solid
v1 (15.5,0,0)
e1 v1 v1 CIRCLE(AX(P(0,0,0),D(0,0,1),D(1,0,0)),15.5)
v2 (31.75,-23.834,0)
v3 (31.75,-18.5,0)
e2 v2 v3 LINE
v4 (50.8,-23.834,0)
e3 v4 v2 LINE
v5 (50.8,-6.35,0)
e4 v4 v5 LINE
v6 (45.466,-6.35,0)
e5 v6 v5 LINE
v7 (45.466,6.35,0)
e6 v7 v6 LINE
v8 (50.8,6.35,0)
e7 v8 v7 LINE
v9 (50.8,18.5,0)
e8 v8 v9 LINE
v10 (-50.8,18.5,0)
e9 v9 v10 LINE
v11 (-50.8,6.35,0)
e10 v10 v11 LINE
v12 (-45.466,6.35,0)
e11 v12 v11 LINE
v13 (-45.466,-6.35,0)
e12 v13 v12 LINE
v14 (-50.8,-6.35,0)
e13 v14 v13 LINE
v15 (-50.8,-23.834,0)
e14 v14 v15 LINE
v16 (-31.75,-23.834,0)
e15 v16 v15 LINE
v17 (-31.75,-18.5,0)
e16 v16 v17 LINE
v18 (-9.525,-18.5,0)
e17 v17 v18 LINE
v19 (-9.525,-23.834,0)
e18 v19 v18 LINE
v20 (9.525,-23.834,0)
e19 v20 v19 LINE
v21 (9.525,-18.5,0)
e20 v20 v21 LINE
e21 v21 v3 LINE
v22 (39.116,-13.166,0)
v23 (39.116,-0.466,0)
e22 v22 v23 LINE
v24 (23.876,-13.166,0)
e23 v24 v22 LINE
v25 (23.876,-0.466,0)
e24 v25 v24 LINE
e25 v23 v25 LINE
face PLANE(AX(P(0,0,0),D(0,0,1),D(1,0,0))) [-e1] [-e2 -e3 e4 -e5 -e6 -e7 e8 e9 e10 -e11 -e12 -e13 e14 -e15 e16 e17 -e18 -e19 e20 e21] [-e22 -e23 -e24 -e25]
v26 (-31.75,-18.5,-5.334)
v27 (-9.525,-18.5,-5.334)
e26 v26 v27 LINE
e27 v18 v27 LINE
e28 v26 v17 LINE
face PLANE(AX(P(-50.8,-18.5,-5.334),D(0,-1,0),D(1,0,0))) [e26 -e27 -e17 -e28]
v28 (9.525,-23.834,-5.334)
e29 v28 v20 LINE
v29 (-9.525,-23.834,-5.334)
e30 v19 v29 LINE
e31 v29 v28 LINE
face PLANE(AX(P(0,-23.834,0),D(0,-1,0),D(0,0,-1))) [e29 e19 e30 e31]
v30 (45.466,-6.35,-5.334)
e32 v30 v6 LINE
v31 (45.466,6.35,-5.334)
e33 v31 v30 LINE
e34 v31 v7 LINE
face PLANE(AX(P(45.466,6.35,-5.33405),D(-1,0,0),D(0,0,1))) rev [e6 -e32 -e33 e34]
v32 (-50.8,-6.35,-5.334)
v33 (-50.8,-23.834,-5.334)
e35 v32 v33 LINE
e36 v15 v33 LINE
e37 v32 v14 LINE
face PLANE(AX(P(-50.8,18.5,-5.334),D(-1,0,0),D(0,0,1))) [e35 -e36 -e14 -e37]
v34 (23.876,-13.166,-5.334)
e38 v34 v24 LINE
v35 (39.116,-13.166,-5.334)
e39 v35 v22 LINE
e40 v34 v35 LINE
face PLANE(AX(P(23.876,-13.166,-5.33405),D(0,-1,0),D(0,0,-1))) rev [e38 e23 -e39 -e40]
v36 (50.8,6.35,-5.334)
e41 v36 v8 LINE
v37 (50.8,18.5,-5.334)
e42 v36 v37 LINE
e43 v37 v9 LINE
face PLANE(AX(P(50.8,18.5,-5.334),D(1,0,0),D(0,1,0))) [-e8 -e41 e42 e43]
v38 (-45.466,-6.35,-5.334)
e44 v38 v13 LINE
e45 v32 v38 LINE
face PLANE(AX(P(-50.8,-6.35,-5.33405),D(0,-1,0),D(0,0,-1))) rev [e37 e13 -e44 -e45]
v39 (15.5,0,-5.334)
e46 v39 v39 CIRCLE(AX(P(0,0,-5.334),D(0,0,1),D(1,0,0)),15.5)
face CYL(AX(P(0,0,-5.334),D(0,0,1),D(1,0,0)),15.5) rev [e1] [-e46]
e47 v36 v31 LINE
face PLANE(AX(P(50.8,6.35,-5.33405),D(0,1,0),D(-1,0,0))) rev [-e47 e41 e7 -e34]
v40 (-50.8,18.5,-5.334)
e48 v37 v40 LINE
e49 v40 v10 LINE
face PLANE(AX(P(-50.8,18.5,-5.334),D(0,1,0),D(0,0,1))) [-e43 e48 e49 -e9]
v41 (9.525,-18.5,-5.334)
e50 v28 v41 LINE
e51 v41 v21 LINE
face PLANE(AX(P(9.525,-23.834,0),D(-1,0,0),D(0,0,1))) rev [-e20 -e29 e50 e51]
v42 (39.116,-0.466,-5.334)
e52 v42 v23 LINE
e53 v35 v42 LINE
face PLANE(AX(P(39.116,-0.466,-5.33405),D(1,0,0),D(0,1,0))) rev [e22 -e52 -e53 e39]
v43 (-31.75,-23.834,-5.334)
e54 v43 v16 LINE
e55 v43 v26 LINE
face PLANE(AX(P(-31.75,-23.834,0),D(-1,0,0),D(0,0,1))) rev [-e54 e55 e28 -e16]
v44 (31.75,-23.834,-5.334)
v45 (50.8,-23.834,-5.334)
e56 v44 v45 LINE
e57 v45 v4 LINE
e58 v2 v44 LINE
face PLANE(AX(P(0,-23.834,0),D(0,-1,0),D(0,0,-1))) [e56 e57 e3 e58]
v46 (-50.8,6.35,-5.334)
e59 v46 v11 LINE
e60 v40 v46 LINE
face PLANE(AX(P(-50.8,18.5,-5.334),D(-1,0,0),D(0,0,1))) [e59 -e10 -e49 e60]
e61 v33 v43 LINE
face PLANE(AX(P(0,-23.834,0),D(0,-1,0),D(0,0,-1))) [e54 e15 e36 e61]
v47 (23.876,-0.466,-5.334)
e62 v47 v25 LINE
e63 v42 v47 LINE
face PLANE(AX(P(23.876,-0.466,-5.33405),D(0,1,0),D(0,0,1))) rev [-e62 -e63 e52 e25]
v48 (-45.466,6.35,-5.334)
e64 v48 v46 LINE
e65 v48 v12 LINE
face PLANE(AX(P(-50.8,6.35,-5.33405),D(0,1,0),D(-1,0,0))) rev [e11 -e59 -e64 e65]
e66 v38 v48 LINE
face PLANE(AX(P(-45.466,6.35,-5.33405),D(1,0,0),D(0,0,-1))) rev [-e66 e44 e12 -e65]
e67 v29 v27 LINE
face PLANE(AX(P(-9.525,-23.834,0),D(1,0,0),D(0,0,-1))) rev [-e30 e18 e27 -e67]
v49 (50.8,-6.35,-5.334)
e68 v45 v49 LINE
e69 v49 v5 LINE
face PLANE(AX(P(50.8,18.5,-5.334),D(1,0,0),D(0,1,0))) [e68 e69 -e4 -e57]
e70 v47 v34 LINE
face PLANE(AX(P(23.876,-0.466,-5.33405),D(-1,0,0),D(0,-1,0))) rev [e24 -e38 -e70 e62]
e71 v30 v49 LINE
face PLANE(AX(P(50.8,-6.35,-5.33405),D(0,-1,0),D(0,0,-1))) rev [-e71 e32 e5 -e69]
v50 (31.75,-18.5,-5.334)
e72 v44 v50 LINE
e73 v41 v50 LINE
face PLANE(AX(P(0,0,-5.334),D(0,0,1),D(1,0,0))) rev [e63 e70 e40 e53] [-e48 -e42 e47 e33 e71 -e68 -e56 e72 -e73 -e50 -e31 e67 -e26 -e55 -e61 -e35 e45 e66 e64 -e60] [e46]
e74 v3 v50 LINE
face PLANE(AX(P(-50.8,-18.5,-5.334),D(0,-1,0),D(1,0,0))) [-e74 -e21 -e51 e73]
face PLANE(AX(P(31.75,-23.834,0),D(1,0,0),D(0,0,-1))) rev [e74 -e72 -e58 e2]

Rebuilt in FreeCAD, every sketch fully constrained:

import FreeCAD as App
import Part
import Sketcher
Q = App.Units.Quantity


def add_polygon(sketch, points):
    """Adds a closed chain of lines whose ends are joined by coincident constraints."""
    first, n = sketch.GeometryCount, len(points)
    for a, b in zip(points, points[1:] + points[:1]):
        sketch.addGeometry(Part.LineSegment(App.Vector(*a, 0), App.Vector(*b, 0)), False)
    for i in range(n):
        sketch.addConstraint(Sketcher.Constraint("Coincident", first + i, 2, first + (i + 1) % n, 1))

doc = App.newDocument("Part")
body = doc.addObject("PartDesign::Body", "Body")

sketch1 = body.newObject("Sketcher::SketchObject", "Sketch")
sketch1.AttachmentSupport = (doc.getObject("XY_Plane"), [""])
sketch1.MapMode = "FlatFace"
add_polygon(sketch1, [(-51, 18), (-51, -18), (51, -18), (51, 18)])
sketch1.addConstraint(Sketcher.Constraint("Vertical", 0))
sketch1.addConstraint(Sketcher.Constraint("Horizontal", 1))
sketch1.addConstraint(Sketcher.Constraint("Vertical", 2))
sketch1.addConstraint(Sketcher.Constraint("Horizontal", 3))
sketch1.addConstraint(Sketcher.Constraint("Symmetric", 0, 2, 2, 2, -1, 1))
sketch1.addConstraint(Sketcher.Constraint("DistanceX", 1, 1, 1, 2, Q("4 in")))
sketch1.addConstraint(Sketcher.Constraint("DistanceY", 0, 2, 0, 1, Q("37 mm")))
pad1 = body.newObject("PartDesign::Pad", "Pad")
pad1.Profile = sketch1
pad1.Length = Q("0.21 in")
pad1.Reversed = True

sketch2 = body.newObject("Sketcher::SketchObject", "Sketch001")
sketch2.AttachmentSupport = (doc.getObject("XY_Plane"), [""])
sketch2.MapMode = "FlatFace"
sketch2.addGeometry(Part.Circle(App.Vector(0, 0, 0), App.Vector(0, 0, 1), 16), False)
sketch2.addConstraint(Sketcher.Constraint("Coincident", 0, 3, -1, 1))
sketch2.addConstraint(Sketcher.Constraint("Diameter", 0, Q("31 mm")))
pocket1 = body.newObject("PartDesign::Pocket", "Pocket")
pocket1.Profile = sketch2
pocket1.Type = "ThroughAll"

sketch3 = body.newObject("Sketcher::SketchObject", "Sketch002")
sketch3.AttachmentSupport = (doc.getObject("XZ_Plane"), [""])
sketch3.MapMode = "FlatFace"
sketch3.AttachmentOffset = App.Placement(App.Vector(0, 0, 18.5), App.Rotation())
add_polygon(sketch3, [(-51, 0), (-51, -5), (-32, -5), (-32, 0)])
add_polygon(sketch3, [(-10, 0), (-10, -5), (10, -5), (10, 0)])
add_polygon(sketch3, [(32, 0), (32, -5), (51, -5), (51, 0)])
sketch3.addConstraint(Sketcher.Constraint("Vertical", 0))
sketch3.addConstraint(Sketcher.Constraint("Horizontal", 1))
sketch3.addConstraint(Sketcher.Constraint("Vertical", 2))
sketch3.addConstraint(Sketcher.Constraint("Horizontal", 3))
sketch3.addConstraint(Sketcher.Constraint("Vertical", 4))
sketch3.addConstraint(Sketcher.Constraint("Horizontal", 5))
sketch3.addConstraint(Sketcher.Constraint("Vertical", 6))
sketch3.addConstraint(Sketcher.Constraint("Horizontal", 7))
sketch3.addConstraint(Sketcher.Constraint("Vertical", 8))
sketch3.addConstraint(Sketcher.Constraint("Horizontal", 9))
sketch3.addConstraint(Sketcher.Constraint("Vertical", 10))
sketch3.addConstraint(Sketcher.Constraint("Horizontal", 11))
sketch3.addConstraint(Sketcher.Constraint("Symmetric", 6, 2, 7, 2, -1, 1))
sketch3.addConstraint(Sketcher.Constraint("Symmetric", 3, 2, 10, 2, -1, 1))
sketch3.addConstraint(Sketcher.Constraint("Symmetric", 1, 2, 8, 2, -2))
sketch3.addConstraint(Sketcher.Constraint("PointOnObject", 2, 2, -1))
sketch3.addConstraint(Sketcher.Constraint("Horizontal", 1, 2, 4, 2))
sketch3.addConstraint(Sketcher.Constraint("Equal", 3, 5))
sketch3.addConstraint(Sketcher.Constraint("DistanceX", 0, 2, -1, 1, Q("2 in")))
sketch3.addConstraint(Sketcher.Constraint("DistanceX", 1, 1, 1, 2, Q("0.75 in")))
sketch3.addConstraint(Sketcher.Constraint("DistanceY", 0, 2, 0, 1, Q("0.21 in")))
pad2 = body.newObject("PartDesign::Pad", "Pad001")
pad2.Profile = sketch3
pad2.Length = Q("0.21 in")

sketch4 = body.newObject("Sketcher::SketchObject", "Sketch003")
sketch4.AttachmentSupport = (doc.getObject("XY_Plane"), [""])
sketch4.MapMode = "FlatFace"
add_polygon(sketch4, [(-51, 6), (-51, -6), (-45, -6), (-45, 6)])
add_polygon(sketch4, [(45, 6), (45, -6), (51, -6), (51, 6)])
sketch4.addConstraint(Sketcher.Constraint("Vertical", 0))
sketch4.addConstraint(Sketcher.Constraint("Horizontal", 1))
sketch4.addConstraint(Sketcher.Constraint("Vertical", 2))
sketch4.addConstraint(Sketcher.Constraint("Horizontal", 3))
sketch4.addConstraint(Sketcher.Constraint("Vertical", 4))
sketch4.addConstraint(Sketcher.Constraint("Horizontal", 5))
sketch4.addConstraint(Sketcher.Constraint("Vertical", 6))
sketch4.addConstraint(Sketcher.Constraint("Horizontal", 7))
sketch4.addConstraint(Sketcher.Constraint("Symmetric", 2, 2, 4, 2, -1, 1))
sketch4.addConstraint(Sketcher.Constraint("Symmetric", 0, 2, 6, 2, -1, 1))
sketch4.addConstraint(Sketcher.Constraint("Horizontal", 1, 2, 4, 2))
sketch4.addConstraint(Sketcher.Constraint("DistanceY", 0, 2, 0, 1, Q("0.5 in")))
sketch4.addConstraint(Sketcher.Constraint("DistanceX", 0, 2, -1, 1, Q("2 in")))
sketch4.addConstraint(Sketcher.Constraint("DistanceX", 1, 1, 1, 2, Q("0.21 in")))
pocket2 = body.newObject("PartDesign::Pocket", "Pocket001")
pocket2.Profile = sketch4
pocket2.Type = "ThroughAll"

sketch5 = body.newObject("Sketcher::SketchObject", "Sketch004")
sketch5.AttachmentSupport = (doc.getObject("XY_Plane"), [""])
sketch5.MapMode = "FlatFace"
sketch5.AttachmentOffset = App.Placement(App.Vector(0, 0, 20.4638), App.Rotation())
add_polygon(sketch5, [(24, 0), (24, -13), (39, -13), (39, 0)])
sketch5.addConstraint(Sketcher.Constraint("Vertical", 0))
sketch5.addConstraint(Sketcher.Constraint("Horizontal", 1))
sketch5.addConstraint(Sketcher.Constraint("Vertical", 2))
sketch5.addConstraint(Sketcher.Constraint("Horizontal", 3))
sketch5.addConstraint(Sketcher.Constraint("DistanceX", 1, 1, 1, 2, Q("0.6 in")))
sketch5.addConstraint(Sketcher.Constraint("DistanceY", 0, 2, 0, 1, Q("0.5 in")))
sketch5.addConstraint(Sketcher.Constraint("DistanceX", -1, 1, 0, 2, Q("0.94 in")))
sketch5.addConstraint(Sketcher.Constraint("DistanceY", 0, 2, -1, 1, Q("13.166 mm")))
pocket3 = body.newObject("PartDesign::Pocket", "Pocket002")
pocket3.Profile = sketch5
pocket3.Type = "ThroughAll"

doc.recompute()
